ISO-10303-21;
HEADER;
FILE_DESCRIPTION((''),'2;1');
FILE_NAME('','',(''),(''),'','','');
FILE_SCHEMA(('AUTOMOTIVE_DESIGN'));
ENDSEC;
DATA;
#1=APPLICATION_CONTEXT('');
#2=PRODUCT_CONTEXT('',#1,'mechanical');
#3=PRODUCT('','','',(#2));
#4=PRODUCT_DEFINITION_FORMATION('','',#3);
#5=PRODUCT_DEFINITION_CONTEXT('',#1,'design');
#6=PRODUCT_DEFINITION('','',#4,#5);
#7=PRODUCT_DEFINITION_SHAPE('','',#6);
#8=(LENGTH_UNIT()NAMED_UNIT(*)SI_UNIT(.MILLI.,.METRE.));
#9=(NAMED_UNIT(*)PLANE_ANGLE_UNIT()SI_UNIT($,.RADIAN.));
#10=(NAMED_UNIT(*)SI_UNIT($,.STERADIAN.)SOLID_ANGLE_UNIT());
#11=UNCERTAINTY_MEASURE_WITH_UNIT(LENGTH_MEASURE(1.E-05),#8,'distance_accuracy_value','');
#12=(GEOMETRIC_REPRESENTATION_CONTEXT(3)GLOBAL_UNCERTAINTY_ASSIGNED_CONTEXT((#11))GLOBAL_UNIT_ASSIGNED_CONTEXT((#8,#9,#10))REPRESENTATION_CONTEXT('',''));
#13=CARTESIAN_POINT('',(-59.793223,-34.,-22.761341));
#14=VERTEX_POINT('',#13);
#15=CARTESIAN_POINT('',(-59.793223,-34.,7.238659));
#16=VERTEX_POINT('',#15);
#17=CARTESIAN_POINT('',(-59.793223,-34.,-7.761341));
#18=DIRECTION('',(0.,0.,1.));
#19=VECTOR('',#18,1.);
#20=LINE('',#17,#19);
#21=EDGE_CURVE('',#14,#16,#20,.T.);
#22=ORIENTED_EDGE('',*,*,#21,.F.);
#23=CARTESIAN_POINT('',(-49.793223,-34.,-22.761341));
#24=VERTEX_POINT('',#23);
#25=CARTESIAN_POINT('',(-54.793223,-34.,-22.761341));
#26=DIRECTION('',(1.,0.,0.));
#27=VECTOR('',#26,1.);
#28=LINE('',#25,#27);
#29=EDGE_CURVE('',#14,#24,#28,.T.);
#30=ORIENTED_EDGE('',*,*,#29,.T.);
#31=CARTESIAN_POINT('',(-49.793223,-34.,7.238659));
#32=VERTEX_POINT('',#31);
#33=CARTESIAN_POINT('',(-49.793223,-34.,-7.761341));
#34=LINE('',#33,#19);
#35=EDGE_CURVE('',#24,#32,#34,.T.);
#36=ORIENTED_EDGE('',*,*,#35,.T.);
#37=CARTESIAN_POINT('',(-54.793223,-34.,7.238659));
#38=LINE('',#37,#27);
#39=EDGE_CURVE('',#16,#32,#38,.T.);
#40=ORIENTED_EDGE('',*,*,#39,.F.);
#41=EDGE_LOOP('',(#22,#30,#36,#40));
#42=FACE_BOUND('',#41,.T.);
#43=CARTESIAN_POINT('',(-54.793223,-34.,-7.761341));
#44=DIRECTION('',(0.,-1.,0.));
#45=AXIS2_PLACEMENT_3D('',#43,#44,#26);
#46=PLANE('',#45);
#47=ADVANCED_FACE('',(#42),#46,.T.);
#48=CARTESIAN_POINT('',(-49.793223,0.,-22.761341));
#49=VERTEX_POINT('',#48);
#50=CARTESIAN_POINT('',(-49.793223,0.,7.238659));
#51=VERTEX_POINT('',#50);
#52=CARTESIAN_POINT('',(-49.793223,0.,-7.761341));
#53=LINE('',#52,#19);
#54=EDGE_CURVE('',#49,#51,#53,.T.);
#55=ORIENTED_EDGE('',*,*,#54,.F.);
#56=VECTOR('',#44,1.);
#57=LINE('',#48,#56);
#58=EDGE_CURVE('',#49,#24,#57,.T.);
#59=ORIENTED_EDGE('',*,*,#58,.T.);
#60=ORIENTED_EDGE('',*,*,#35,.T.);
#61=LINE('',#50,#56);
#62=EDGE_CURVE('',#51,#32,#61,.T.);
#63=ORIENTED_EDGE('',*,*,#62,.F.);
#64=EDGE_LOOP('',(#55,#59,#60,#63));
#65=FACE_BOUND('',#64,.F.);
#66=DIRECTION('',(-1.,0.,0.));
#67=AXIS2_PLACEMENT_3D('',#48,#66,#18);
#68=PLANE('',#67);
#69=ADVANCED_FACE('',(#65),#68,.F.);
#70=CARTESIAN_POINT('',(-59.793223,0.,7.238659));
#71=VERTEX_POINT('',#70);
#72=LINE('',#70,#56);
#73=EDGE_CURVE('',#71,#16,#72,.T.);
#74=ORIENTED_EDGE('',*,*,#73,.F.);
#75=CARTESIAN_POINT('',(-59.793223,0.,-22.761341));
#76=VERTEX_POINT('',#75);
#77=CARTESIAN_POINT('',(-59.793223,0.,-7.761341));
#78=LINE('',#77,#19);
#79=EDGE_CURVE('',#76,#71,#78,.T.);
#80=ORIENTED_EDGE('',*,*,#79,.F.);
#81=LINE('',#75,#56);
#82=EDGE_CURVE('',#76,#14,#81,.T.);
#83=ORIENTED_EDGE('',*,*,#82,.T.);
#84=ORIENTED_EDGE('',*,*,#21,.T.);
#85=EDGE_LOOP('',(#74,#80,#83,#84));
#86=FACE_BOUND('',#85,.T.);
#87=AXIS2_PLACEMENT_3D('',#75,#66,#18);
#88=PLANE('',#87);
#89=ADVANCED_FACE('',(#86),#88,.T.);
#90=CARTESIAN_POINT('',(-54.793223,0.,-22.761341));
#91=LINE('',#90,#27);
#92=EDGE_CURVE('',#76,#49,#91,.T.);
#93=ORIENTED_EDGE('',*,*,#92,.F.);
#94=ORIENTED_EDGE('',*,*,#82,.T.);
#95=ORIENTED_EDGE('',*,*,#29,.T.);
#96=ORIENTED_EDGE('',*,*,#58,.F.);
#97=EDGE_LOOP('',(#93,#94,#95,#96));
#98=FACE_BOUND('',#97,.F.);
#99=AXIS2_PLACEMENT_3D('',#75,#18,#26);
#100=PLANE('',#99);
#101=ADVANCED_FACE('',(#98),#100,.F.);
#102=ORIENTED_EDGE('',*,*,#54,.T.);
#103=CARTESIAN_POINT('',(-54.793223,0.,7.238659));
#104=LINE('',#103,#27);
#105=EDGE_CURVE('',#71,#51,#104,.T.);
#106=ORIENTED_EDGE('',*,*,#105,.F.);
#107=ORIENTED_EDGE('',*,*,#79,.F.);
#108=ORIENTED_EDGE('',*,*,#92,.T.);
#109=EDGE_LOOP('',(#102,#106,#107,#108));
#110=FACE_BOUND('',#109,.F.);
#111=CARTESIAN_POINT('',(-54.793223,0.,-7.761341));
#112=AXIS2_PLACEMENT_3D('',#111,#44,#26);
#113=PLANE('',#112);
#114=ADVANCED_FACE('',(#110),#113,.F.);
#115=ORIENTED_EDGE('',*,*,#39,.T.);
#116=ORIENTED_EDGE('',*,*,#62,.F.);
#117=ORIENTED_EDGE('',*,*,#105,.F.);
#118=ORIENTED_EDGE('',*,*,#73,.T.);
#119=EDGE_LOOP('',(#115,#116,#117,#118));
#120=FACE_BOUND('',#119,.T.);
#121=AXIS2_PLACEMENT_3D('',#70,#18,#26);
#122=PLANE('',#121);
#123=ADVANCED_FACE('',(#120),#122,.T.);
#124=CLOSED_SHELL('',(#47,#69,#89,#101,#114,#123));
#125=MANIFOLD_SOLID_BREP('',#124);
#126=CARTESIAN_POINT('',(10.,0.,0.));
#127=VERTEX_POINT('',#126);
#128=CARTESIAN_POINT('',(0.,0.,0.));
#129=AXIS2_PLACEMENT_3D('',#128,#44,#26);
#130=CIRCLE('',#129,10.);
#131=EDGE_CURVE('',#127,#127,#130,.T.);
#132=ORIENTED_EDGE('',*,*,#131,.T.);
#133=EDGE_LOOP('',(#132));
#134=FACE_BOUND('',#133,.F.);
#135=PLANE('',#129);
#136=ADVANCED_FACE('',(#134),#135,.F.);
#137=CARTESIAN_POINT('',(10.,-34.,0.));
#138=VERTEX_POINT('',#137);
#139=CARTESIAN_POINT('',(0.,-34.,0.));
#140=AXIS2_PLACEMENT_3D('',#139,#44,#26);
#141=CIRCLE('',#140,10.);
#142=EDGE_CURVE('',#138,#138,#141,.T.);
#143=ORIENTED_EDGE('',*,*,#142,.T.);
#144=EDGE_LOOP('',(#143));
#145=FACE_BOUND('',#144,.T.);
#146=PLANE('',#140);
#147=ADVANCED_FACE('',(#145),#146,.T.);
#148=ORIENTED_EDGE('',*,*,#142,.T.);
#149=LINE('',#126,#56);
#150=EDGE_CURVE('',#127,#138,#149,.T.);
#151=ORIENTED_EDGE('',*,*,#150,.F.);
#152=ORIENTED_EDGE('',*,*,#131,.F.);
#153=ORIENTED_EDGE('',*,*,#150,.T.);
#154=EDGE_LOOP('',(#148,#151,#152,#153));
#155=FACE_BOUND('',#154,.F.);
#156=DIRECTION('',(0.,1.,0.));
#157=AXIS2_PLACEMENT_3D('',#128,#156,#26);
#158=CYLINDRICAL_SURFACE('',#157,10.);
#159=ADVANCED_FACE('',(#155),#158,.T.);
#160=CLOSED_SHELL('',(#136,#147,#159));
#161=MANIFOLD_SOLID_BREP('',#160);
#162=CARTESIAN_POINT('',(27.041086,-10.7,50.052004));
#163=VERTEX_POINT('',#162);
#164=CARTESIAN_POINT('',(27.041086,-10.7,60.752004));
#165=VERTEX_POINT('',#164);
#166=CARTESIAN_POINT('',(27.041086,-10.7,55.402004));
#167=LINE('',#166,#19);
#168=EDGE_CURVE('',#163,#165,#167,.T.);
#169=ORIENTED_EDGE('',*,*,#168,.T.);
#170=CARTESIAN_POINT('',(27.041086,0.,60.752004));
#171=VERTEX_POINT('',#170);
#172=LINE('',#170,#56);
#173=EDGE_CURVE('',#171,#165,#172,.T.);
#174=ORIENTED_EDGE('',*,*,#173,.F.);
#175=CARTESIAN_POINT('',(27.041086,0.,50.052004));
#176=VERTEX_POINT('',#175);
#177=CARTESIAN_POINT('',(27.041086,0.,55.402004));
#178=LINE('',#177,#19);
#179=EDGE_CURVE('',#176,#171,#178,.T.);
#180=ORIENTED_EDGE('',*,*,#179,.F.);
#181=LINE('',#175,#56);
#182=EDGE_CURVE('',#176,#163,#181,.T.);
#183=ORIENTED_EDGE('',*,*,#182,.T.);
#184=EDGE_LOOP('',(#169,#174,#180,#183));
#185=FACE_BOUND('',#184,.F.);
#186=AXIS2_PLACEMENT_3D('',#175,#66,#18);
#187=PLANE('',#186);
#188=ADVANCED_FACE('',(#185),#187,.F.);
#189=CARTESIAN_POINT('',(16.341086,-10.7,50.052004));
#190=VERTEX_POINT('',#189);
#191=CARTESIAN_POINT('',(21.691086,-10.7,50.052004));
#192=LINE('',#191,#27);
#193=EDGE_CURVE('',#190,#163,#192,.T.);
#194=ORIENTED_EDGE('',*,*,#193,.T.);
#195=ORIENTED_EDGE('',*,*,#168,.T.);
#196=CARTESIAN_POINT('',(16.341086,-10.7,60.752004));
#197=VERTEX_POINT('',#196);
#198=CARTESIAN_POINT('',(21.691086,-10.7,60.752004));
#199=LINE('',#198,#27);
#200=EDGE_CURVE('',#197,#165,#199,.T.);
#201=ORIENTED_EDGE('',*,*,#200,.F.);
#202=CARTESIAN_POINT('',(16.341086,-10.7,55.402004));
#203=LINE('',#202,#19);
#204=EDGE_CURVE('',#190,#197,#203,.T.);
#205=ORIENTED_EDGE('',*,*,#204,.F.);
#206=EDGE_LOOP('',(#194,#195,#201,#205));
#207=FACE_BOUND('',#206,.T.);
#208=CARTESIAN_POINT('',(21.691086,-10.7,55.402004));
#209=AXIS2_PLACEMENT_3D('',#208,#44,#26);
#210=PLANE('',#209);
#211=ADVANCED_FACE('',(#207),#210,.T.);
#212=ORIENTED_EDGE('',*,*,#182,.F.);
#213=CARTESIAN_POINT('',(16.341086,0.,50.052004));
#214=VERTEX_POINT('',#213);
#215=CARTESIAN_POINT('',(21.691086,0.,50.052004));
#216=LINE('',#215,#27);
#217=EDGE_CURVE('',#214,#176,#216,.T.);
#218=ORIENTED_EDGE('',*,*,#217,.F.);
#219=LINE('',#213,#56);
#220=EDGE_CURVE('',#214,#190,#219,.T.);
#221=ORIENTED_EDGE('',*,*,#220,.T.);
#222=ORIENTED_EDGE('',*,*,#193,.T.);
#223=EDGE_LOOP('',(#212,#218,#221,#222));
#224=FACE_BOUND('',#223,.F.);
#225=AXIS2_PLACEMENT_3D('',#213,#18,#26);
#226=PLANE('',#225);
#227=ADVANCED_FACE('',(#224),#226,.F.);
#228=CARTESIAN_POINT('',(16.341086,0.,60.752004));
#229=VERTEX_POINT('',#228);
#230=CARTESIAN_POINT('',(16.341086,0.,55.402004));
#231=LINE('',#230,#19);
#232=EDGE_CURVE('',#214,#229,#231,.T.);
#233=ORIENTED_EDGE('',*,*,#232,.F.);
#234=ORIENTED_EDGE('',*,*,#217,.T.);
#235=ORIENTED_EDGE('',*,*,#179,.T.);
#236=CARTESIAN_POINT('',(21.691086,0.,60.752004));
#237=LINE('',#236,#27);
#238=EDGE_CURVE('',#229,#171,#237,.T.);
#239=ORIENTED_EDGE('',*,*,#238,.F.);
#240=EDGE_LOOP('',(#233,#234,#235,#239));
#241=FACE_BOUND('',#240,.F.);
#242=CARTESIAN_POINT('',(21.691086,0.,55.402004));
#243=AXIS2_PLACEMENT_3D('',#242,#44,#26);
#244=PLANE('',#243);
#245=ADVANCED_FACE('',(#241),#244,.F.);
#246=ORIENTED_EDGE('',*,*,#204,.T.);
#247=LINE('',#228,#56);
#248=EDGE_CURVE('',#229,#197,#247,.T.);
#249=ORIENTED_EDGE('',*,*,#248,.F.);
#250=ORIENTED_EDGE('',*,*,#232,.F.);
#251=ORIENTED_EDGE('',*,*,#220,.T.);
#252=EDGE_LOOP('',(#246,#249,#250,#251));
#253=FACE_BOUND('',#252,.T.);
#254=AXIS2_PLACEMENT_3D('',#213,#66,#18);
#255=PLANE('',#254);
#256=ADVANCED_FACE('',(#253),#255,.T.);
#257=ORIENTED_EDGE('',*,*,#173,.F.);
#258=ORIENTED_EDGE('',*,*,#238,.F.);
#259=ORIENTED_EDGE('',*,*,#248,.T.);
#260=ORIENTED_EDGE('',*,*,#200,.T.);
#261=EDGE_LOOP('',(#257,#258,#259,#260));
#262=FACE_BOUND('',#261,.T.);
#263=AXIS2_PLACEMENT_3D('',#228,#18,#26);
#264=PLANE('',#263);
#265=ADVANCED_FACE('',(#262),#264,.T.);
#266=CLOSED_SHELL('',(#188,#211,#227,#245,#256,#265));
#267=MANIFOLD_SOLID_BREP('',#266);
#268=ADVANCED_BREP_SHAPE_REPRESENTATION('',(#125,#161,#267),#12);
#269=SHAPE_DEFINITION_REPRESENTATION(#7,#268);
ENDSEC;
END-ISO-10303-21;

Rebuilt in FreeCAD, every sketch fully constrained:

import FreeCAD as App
import Part
import Sketcher
from FreeCAD import Vector
Q = App.Units.Quantity

doc = App.newDocument("Part")
body = doc.addObject("PartDesign::Body", "Body")
body.AllowCompound = True

sketch1 = doc.addObject("Sketcher::SketchObject", "Sketch")
body.addObject(sketch1)
sketch1.AttachmentSupport = (doc.XZ_Plane, [""])
sketch1.MapMode = "FlatFace"
sketch1.addGeometry(Part.Circle(Vector(0, 0, 0), Vector(0, 0, 1), 10), False)
sketch1.addGeometry(Part.LineSegment(Vector(-60, 7, 0), Vector(-60, -23, 0)), False)
sketch1.addGeometry(Part.LineSegment(Vector(-60, -23, 0), Vector(-50, -23, 0)), False)
sketch1.addGeometry(Part.LineSegment(Vector(-50, -23, 0), Vector(-50, 7, 0)), False)
sketch1.addGeometry(Part.LineSegment(Vector(-50, 7, 0), Vector(-60, 7, 0)), False)
sketch1.addConstraint(Sketcher.Constraint("Coincident", 1, 2, 2, 1))
sketch1.addConstraint(Sketcher.Constraint("Coincident", 2, 2, 3, 1))
sketch1.addConstraint(Sketcher.Constraint("Coincident", 3, 2, 4, 1))
sketch1.addConstraint(Sketcher.Constraint("Coincident", 4, 2, 1, 1))
sketch1.addConstraint(Sketcher.Constraint("Vertical", 1))
sketch1.addConstraint(Sketcher.Constraint("Horizontal", 2))
sketch1.addConstraint(Sketcher.Constraint("Vertical", 3))
sketch1.addConstraint(Sketcher.Constraint("Horizontal", 4))
sketch1.addConstraint(Sketcher.Constraint("Coincident", 0, 3, -1, 1))
sketch1.addConstraint(Sketcher.Constraint("Diameter", 0, Q("20 mm")))
sketch1.addConstraint(Sketcher.Constraint("DistanceX", 2, 1, 2, 2, Q("10 mm")))
sketch1.addConstraint(Sketcher.Constraint("DistanceY", 1, 2, 1, 1, Q("30 mm")))
sketch1.addConstraint(Sketcher.Constraint("DistanceY", 1, 2, -1, 1, Q("22.761341 mm")))
sketch1.addConstraint(Sketcher.Constraint("DistanceX", 1, 2, -1, 1, Q("59.793223 mm")))
pad1 = doc.addObject("PartDesign::Pad", "Pad")
body.addObject(pad1)
pad1.Profile = sketch1
pad1.Length = 34
body2 = doc.addObject("PartDesign::Body", "Body001")

sketch2 = doc.addObject("Sketcher::SketchObject", "Sketch001")
body2.addObject(sketch2)
sketch2.AttachmentSupport = (doc.getObject("XZ_Plane001"), [""])
sketch2.MapMode = "FlatFace"
sketch2.addGeometry(Part.LineSegment(Vector(16, 61, 0), Vector(16, 50, 0)), False)
sketch2.addGeometry(Part.LineSegment(Vector(16, 50, 0), Vector(27, 50, 0)), False)
sketch2.addGeometry(Part.LineSegment(Vector(27, 50, 0), Vector(27, 61, 0)), False)
sketch2.addGeometry(Part.LineSegment(Vector(27, 61, 0), Vector(16, 61, 0)), False)
sketch2.addConstraint(Sketcher.Constraint("Coincident", 0, 2, 1, 1))
sketch2.addConstraint(Sketcher.Constraint("Coincident", 1, 2, 2, 1))
sketch2.addConstraint(Sketcher.Constraint("Coincident", 2, 2, 3, 1))
sketch2.addConstraint(Sketcher.Constraint("Coincident", 3, 2, 0, 1))
sketch2.addConstraint(Sketcher.Constraint("Vertical", 0))
sketch2.addConstraint(Sketcher.Constraint("Horizontal", 1))
sketch2.addConstraint(Sketcher.Constraint("Vertical", 2))
sketch2.addConstraint(Sketcher.Constraint("Horizontal", 3))
sketch2.addConstraint(Sketcher.Constraint("Equal", 3, 0))
sketch2.addConstraint(Sketcher.Constraint("DistanceX", 1, 1, 1, 2, Q("10.7 mm")))
sketch2.addConstraint(Sketcher.Constraint("DistanceX", -1, 1, 0, 2, Q("16.341086 mm")))
sketch2.addConstraint(Sketcher.Constraint("DistanceY", -1, 1, 0, 2, Q("50.052004 mm")))
pad2 = doc.addObject("PartDesign::Pad", "Pad001")
body2.addObject(pad2)
pad2.Profile = sketch2
pad2.Length = 10.7

doc.recompute()
